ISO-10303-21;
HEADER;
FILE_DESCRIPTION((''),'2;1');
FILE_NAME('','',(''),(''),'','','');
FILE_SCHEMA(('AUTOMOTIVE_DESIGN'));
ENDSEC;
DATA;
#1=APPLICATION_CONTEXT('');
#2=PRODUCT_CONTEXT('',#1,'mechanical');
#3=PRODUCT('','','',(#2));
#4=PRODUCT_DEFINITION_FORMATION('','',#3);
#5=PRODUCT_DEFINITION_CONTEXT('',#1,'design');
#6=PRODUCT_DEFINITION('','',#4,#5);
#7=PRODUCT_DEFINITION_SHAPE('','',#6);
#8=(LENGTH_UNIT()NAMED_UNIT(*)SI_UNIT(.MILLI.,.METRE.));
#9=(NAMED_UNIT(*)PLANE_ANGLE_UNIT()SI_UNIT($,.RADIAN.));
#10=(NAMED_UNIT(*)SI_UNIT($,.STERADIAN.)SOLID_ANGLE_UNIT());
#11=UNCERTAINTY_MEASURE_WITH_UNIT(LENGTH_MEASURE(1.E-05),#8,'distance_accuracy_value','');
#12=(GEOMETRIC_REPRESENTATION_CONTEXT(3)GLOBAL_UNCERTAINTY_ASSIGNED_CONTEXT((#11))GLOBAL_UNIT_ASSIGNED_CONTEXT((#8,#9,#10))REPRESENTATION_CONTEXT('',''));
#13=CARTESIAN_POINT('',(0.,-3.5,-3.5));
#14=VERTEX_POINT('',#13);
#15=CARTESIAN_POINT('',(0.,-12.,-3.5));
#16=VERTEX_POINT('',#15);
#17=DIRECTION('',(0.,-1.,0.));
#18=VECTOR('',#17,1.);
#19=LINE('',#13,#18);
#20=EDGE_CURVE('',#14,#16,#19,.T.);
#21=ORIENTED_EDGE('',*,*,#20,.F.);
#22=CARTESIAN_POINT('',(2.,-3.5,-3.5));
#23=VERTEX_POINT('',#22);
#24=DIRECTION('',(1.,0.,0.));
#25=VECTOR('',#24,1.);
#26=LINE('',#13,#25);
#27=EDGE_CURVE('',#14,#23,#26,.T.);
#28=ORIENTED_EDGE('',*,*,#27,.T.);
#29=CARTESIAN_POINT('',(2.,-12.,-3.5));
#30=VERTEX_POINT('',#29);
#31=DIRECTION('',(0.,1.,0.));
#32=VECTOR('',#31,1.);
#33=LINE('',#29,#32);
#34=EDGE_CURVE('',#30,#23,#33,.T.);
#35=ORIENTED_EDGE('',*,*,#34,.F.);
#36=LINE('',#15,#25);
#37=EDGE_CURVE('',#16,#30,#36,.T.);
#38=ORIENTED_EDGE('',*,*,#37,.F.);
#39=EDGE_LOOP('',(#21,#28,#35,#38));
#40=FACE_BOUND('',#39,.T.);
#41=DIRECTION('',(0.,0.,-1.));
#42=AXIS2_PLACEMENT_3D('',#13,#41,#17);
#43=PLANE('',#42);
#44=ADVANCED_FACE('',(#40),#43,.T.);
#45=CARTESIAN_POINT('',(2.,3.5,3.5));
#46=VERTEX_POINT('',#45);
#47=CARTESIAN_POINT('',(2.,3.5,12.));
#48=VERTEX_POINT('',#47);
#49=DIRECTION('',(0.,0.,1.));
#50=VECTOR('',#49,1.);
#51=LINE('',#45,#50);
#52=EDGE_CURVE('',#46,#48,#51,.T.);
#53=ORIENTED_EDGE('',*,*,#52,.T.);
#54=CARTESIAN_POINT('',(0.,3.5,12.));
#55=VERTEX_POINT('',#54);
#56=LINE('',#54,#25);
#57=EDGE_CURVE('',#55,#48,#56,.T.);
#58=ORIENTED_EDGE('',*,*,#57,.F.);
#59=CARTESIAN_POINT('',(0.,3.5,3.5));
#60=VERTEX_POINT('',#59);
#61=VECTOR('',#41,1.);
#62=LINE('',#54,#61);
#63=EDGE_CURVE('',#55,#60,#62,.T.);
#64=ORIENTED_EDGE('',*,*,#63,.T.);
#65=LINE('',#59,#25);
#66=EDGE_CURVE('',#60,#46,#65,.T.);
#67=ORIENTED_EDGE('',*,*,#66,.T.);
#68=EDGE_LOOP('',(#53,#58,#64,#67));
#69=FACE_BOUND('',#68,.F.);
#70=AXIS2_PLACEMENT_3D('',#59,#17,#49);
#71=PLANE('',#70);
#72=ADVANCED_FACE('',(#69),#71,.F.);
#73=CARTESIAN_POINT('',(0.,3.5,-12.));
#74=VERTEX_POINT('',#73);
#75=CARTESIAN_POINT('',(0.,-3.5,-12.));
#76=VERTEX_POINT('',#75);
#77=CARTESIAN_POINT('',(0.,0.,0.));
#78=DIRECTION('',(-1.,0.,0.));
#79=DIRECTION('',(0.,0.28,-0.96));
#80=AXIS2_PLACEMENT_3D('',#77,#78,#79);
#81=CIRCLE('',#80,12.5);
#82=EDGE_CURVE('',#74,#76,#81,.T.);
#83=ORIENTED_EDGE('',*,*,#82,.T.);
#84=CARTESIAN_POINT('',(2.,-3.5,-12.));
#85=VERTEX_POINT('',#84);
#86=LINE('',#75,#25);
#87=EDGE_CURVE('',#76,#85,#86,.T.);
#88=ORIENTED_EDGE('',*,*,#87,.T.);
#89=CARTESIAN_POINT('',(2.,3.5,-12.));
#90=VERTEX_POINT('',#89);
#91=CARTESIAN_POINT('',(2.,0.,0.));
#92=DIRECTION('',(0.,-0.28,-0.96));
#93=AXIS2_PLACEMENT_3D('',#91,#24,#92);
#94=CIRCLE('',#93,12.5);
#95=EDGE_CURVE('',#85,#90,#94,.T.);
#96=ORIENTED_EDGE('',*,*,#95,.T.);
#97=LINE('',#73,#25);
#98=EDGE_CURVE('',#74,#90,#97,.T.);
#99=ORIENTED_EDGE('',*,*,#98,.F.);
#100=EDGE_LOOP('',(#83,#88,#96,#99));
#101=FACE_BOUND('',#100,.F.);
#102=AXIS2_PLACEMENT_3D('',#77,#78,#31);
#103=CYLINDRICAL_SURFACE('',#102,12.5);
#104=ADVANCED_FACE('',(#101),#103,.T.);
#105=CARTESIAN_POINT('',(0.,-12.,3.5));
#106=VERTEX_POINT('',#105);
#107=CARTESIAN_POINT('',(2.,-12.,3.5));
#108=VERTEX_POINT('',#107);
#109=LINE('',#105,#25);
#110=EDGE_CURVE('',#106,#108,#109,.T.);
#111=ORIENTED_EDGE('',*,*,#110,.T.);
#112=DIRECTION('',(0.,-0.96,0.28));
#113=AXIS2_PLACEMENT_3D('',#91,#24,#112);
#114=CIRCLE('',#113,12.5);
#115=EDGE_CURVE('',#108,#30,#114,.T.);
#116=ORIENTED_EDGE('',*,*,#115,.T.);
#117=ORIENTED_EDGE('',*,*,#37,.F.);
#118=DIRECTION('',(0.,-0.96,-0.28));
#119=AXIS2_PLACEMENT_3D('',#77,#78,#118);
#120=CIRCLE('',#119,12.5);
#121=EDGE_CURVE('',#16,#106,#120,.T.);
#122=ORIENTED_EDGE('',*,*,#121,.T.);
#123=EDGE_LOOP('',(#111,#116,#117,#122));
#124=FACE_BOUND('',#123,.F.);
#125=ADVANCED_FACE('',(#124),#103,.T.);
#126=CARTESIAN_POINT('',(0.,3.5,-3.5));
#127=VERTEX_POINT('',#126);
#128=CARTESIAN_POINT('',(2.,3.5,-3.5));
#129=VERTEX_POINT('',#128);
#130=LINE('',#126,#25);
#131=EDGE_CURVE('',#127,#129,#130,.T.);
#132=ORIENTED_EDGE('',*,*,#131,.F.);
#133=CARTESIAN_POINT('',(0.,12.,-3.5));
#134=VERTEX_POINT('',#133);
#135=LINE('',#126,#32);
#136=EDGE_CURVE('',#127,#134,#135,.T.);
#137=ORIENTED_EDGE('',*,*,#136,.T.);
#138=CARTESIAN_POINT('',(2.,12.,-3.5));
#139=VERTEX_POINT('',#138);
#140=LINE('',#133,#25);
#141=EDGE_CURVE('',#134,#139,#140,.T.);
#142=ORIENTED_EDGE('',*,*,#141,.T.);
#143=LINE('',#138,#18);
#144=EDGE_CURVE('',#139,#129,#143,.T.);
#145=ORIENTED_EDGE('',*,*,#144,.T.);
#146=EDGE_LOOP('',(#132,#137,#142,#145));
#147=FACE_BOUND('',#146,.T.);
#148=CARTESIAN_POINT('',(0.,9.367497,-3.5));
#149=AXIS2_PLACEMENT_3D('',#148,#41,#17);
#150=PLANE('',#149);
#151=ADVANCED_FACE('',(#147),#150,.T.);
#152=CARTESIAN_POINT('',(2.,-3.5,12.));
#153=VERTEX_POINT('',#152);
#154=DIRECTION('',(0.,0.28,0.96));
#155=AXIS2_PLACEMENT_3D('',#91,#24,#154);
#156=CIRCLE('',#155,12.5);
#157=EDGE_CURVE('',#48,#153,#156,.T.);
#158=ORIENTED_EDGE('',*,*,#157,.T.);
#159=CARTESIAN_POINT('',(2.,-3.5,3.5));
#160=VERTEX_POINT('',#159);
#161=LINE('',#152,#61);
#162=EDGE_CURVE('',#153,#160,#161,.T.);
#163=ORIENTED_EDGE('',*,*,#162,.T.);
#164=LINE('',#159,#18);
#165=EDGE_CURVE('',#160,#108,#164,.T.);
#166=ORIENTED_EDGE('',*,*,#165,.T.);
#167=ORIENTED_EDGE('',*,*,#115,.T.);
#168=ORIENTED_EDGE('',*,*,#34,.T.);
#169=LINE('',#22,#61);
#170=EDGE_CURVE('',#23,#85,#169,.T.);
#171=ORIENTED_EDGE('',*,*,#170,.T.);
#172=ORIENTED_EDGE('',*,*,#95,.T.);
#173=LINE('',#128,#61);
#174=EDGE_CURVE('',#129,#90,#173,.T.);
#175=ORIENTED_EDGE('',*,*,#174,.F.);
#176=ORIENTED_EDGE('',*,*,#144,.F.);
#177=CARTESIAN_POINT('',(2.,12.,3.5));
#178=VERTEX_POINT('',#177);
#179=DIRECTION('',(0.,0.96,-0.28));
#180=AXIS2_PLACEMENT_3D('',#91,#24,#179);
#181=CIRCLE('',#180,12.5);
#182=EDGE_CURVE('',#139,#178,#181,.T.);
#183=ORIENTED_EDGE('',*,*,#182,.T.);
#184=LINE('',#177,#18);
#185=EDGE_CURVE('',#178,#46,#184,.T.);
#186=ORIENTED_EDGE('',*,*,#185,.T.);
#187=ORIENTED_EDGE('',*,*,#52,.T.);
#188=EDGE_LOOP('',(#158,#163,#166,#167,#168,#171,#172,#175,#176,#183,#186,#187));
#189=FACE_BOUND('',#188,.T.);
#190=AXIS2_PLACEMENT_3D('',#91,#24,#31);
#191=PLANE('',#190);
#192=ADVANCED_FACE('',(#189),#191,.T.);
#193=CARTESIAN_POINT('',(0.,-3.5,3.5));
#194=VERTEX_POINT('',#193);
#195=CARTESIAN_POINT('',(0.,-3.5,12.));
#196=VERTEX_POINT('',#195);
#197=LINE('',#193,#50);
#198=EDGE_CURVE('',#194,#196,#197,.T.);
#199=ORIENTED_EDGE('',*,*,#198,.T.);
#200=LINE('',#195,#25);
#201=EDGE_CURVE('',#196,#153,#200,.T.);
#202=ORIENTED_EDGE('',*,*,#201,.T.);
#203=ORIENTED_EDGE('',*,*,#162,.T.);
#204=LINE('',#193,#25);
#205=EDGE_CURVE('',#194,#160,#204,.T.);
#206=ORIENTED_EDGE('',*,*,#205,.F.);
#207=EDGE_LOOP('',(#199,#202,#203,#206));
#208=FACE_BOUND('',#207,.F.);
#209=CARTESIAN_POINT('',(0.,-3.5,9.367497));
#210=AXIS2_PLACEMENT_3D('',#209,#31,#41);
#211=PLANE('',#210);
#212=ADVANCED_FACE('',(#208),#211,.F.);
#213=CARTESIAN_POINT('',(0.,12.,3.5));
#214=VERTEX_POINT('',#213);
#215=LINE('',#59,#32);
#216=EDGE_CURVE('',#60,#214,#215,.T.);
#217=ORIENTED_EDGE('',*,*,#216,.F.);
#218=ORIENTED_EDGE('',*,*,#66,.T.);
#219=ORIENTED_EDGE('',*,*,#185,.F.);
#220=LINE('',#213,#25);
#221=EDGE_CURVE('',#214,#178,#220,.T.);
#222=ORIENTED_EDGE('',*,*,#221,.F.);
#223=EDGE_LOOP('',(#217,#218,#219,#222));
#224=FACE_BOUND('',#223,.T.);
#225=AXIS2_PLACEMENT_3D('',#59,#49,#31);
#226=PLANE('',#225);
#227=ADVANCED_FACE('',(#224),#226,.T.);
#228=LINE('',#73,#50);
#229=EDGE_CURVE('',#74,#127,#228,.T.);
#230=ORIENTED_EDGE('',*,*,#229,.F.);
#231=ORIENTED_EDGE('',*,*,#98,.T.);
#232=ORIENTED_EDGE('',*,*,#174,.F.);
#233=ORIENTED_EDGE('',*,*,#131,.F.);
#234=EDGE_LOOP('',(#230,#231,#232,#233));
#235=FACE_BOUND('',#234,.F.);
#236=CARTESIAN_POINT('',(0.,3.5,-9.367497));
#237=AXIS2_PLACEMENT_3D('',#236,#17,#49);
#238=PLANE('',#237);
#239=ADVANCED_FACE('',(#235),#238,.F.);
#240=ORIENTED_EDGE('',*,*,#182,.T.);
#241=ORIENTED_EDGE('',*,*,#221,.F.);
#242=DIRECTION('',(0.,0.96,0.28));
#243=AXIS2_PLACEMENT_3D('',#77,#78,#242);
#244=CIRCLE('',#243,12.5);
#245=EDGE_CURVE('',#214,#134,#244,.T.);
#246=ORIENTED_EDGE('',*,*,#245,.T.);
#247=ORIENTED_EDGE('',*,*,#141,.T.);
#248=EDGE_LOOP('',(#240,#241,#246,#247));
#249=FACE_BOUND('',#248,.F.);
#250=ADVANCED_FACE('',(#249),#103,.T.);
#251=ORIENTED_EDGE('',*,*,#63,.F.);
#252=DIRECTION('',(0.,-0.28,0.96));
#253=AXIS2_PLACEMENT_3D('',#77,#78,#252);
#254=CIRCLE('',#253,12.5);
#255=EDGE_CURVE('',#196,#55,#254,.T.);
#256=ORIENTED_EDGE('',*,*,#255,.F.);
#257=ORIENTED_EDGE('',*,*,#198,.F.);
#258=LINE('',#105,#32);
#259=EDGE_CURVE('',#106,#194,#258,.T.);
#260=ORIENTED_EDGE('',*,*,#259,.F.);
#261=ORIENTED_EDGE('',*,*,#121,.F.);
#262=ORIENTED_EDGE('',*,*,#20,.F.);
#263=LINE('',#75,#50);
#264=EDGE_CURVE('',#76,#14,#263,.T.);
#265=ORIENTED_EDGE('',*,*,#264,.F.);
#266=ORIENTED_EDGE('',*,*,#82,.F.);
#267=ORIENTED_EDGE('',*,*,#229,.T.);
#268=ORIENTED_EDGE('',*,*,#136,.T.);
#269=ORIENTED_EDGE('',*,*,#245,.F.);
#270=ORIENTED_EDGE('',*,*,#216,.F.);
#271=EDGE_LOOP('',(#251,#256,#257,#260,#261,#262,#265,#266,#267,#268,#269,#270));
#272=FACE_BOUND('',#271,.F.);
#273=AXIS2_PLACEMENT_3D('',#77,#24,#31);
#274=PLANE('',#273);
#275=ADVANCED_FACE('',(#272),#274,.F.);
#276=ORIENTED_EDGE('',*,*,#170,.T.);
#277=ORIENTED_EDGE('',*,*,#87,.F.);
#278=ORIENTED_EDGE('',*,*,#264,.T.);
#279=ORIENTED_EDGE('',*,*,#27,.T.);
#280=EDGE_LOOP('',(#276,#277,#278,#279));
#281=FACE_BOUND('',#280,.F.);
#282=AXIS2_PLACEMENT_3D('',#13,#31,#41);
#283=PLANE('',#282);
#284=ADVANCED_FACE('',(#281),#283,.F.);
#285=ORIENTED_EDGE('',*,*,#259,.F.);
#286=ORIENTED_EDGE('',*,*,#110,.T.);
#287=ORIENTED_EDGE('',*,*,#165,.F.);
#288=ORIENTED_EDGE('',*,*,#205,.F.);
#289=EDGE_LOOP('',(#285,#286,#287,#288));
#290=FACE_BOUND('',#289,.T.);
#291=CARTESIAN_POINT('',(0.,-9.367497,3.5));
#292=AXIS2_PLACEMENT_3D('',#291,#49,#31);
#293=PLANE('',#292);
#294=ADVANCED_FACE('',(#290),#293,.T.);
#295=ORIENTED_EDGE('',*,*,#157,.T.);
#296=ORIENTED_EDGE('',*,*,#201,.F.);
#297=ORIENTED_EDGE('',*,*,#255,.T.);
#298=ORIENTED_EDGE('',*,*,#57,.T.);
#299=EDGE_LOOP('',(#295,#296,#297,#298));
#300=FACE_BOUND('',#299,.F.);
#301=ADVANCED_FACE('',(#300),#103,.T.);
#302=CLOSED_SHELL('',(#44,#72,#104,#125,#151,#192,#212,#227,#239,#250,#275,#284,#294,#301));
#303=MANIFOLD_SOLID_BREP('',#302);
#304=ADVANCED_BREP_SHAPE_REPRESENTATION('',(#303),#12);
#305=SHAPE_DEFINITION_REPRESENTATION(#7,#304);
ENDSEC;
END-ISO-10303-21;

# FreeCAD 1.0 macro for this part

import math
import FreeCAD as App
import Part
import Sketcher

V = App.Vector
Q = App.Units.Quantity

doc = App.newDocument("Part")
body = doc.addObject("PartDesign::Body", "Body")

sketch1 = body.newObject("Sketcher::SketchObject", "Sketch")
sketch1.AttachmentSupport = (doc.getObject("YZ_Plane"), [""])
sketch1.MapMode = "FlatFace"
sketch1.addGeometry([
    Part.LineSegment(V(4, -4, 0), V(12, -4, 0)),
    Part.ArcOfCircle(Part.Circle(V(0, 0, 0), V(0, 0, 1), 12), math.radians(-16), math.radians(16)),
    Part.LineSegment(V(12, 4, 0), V(4, 4, 0)),
    Part.LineSegment(V(4, 4, 0), V(4, 12, 0)),
    Part.ArcOfCircle(Part.Circle(V(0, 0, 0), V(0, 0, 1), 12), math.radians(74), math.radians(106)),
    Part.LineSegment(V(-4, 12, 0), V(-4, 4, 0)),
    Part.LineSegment(V(-4, 4, 0), V(-12, 4, 0)),
    Part.ArcOfCircle(Part.Circle(V(0, 0, 0), V(0, 0, 1), 12), math.radians(164), math.radians(196)),
    Part.LineSegment(V(-12, -4, 0), V(-4, -4, 0)),
    Part.LineSegment(V(-4, -4, 0), V(-4, -12, 0)),
    Part.ArcOfCircle(Part.Circle(V(0, 0, 0), V(0, 0, 1), 12), math.radians(-106), math.radians(-74)),
    Part.LineSegment(V(4, -12, 0), V(4, -4, 0)),
], False)
sketch1.addConstraint([
    Sketcher.Constraint("Coincident", 0, 2, 1, 1),
    Sketcher.Constraint("Coincident", 1, 2, 2, 1),
    Sketcher.Constraint("Coincident", 2, 2, 3, 1),
    Sketcher.Constraint("Coincident", 3, 2, 4, 1),
    Sketcher.Constraint("Coincident", 4, 2, 5, 1),
    Sketcher.Constraint("Coincident", 5, 2, 6, 1),
    Sketcher.Constraint("Coincident", 6, 2, 7, 1),
    Sketcher.Constraint("Coincident", 7, 2, 8, 1),
    Sketcher.Constraint("Coincident", 8, 2, 9, 1),
    Sketcher.Constraint("Coincident", 9, 2, 10, 1),
    Sketcher.Constraint("Coincident", 10, 2, 11, 1),
    Sketcher.Constraint("Coincident", 11, 2, 0, 1),
    Sketcher.Constraint("Horizontal", 0),
    Sketcher.Constraint("Horizontal", 2),
    Sketcher.Constraint("Vertical", 3),
    Sketcher.Constraint("Vertical", 5),
    Sketcher.Constraint("Horizontal", 6),
    Sketcher.Constraint("Horizontal", 8),
    Sketcher.Constraint("Vertical", 9),
    Sketcher.Constraint("Vertical", 11),
    Sketcher.Constraint("Coincident", 1, 3, -1, 1),
    Sketcher.Constraint("Coincident", 4, 3, -1, 1),
    Sketcher.Constraint("Coincident", 7, 3, -1, 1),
    Sketcher.Constraint("Coincident", 10, 3, -1, 1),
    Sketcher.Constraint("Equal", 1, 4),
    Sketcher.Constraint("Equal", 4, 7),
    Sketcher.Constraint("Equal", 7, 10),
    Sketcher.Constraint("Symmetric", 2, 2, 8, 2, -1, 1),
    Sketcher.Constraint("Symmetric", 5, 2, 11, 2, -1, 1),
    Sketcher.Constraint("Symmetric", 2, 2, 5, 2, -2),
    Sketcher.Constraint("Equal", 8, 3),
    Sketcher.Constraint("Radius", 1, Q("12.5 mm")),
    Sketcher.Constraint("DistanceY", 0, 2, 1, 2, Q("7 mm")),
])
pad1 = body.newObject("PartDesign::Pad", "Pad")
pad1.Profile = sketch1
pad1.Length = 2

doc.recompute()
